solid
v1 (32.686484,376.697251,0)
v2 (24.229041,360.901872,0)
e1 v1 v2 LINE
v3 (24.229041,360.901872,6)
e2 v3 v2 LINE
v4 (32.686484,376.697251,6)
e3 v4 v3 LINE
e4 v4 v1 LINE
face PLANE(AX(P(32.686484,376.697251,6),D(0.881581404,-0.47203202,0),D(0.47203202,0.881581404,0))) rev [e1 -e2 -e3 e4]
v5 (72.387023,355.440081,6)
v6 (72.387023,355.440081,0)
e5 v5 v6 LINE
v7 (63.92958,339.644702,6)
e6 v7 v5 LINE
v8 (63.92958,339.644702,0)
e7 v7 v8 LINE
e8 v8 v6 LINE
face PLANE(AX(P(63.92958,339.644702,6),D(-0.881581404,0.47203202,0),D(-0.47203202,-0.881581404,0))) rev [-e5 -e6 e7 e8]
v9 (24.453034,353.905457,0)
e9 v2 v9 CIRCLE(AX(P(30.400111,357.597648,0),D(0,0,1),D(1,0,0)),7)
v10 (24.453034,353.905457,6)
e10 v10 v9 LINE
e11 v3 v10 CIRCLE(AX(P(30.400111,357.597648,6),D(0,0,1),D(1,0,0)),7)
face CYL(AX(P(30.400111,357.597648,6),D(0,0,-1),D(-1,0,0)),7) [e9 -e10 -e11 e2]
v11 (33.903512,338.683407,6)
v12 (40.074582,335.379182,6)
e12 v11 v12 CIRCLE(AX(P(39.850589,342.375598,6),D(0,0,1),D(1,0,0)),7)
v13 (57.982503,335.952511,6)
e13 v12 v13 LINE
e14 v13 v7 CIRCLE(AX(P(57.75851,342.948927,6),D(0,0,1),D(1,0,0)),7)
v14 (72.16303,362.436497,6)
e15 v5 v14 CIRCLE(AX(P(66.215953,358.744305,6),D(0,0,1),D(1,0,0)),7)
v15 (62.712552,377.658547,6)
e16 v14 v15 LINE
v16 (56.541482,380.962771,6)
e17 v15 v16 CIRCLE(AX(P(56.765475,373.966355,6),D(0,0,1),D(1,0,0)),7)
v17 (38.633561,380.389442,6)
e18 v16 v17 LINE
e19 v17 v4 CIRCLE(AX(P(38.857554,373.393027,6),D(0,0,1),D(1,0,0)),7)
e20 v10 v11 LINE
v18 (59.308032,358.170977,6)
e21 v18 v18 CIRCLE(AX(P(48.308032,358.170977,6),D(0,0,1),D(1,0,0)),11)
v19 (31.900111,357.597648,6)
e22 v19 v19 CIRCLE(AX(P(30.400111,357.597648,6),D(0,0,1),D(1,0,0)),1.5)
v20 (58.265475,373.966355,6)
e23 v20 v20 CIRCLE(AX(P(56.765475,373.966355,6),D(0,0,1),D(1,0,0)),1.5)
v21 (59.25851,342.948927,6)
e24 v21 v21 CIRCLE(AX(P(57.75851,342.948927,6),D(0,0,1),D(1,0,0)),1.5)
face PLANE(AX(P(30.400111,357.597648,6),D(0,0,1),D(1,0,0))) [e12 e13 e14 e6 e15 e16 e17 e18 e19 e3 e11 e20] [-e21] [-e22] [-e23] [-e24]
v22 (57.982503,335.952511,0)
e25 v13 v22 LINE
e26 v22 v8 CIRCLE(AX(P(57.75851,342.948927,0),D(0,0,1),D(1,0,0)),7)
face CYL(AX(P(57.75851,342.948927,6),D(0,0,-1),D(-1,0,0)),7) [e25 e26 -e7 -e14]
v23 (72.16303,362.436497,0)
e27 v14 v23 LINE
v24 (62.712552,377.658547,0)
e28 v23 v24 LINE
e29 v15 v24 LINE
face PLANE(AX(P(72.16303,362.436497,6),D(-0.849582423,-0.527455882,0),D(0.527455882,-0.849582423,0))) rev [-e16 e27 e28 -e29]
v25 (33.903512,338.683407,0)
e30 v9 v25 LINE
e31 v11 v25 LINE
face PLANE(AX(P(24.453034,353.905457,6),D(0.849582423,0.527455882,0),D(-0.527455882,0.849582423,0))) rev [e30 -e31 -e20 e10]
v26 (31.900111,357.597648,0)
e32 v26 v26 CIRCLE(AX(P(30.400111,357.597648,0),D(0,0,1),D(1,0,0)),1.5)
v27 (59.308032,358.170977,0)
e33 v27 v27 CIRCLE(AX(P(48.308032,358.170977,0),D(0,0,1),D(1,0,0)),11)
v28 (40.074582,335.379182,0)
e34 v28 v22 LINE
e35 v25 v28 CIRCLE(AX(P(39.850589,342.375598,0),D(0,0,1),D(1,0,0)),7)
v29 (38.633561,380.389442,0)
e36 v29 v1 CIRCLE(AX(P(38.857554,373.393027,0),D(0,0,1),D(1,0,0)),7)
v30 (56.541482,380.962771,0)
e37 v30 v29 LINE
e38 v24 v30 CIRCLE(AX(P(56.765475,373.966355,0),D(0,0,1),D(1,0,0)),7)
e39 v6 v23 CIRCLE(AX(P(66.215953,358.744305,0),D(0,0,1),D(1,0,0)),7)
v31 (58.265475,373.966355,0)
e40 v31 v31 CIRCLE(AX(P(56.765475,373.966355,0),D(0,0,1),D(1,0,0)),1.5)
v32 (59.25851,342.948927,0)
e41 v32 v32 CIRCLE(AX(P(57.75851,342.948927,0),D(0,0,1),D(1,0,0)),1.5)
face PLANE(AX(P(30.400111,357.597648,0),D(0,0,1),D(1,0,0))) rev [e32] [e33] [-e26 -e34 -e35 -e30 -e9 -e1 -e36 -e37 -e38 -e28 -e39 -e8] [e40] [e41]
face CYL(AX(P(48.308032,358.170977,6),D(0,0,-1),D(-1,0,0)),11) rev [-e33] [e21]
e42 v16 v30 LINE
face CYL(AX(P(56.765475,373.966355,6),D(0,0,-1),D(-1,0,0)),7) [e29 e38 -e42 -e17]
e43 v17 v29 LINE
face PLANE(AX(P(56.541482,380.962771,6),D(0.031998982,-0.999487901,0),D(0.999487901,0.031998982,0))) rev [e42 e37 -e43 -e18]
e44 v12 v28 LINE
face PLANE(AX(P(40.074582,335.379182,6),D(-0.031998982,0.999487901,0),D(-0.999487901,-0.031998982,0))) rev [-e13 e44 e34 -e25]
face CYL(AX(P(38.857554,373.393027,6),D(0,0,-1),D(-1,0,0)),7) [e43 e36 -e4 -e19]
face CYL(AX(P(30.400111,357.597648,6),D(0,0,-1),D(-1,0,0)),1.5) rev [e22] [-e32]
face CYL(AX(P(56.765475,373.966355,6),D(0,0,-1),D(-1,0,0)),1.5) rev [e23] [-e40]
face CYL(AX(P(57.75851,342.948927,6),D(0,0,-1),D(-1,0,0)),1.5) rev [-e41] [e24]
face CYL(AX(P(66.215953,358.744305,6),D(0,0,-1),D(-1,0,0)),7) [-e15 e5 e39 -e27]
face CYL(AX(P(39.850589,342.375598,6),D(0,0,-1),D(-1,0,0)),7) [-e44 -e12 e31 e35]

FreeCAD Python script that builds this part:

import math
import FreeCAD as App
import Part
import Sketcher

doc = App.newDocument("Part")
body = doc.addObject("PartDesign::Body", "Body")

# Sketch on XY plane
sketch1 = doc.addObject("Sketcher::SketchObject", "Sketch")
body.addObject(sketch1)
sketch1.AttachmentSupport = (doc.XY_Plane, [""])
sketch1.MapMode = "FlatFace"
sketch1.addGeometry([
    Part.LineSegment(App.Vector(24.5, 353.9, 0), App.Vector(33.9, 338.7, 0)),  # 0
    Part.ArcOfCircle(Part.Circle(App.Vector(39.9, 342.4, 0), App.Vector(0, 0, 1), 7), math.radians(-148), math.radians(-88)),  # 1
    Part.LineSegment(App.Vector(40.1, 335.4, 0), App.Vector(58, 336, 0)),  # 2
    Part.ArcOfCircle(Part.Circle(App.Vector(57.8, 342.9, 0), App.Vector(0, 0, 1), 7), math.radians(-88), math.radians(-28)),  # 3
    Part.LineSegment(App.Vector(63.9, 339.6, 0), App.Vector(72.4, 355.4, 0)),  # 4
    Part.ArcOfCircle(Part.Circle(App.Vector(66.2, 358.7, 0), App.Vector(0, 0, 1), 7), math.radians(-28), math.radians(32)),  # 5
    Part.LineSegment(App.Vector(72.2, 362.4, 0), App.Vector(62.7, 377.7, 0)),  # 6
    Part.ArcOfCircle(Part.Circle(App.Vector(56.8, 374, 0), App.Vector(0, 0, 1), 7), math.radians(32), math.radians(92)),  # 7
    Part.LineSegment(App.Vector(56.5, 381, 0), App.Vector(38.6, 380.4, 0)),  # 8
    Part.ArcOfCircle(Part.Circle(App.Vector(38.9, 373.4, 0), App.Vector(0, 0, 1), 7), math.radians(92), math.radians(152)),  # 9
    Part.LineSegment(App.Vector(32.7, 376.7, 0), App.Vector(24.2, 360.9, 0)),  # 10
    Part.ArcOfCircle(Part.Circle(App.Vector(30.4, 357.6, 0), App.Vector(0, 0, 1), 7), math.radians(152), math.radians(212)),  # 11
    Part.Circle(App.Vector(30.4, 357.6, 0), App.Vector(0, 0, 1), 1.5),  # 12
    Part.Circle(App.Vector(57.8, 342.9, 0), App.Vector(0, 0, 1), 1.5),  # 13
    Part.Circle(App.Vector(48.3, 358.2, 0), App.Vector(0, 0, 1), 11),  # 14
    Part.Circle(App.Vector(56.8, 374, 0), App.Vector(0, 0, 1), 1.5),  # 15
], False)
sketch1.addConstraint([
    Sketcher.Constraint("Tangent", 0, 2, 1, 1),
    Sketcher.Constraint("Tangent", 1, 2, 2, 1),
    Sketcher.Constraint("Tangent", 2, 2, 3, 1),
    Sketcher.Constraint("Tangent", 3, 2, 4, 1),
    Sketcher.Constraint("Tangent", 4, 2, 5, 1),
    Sketcher.Constraint("Tangent", 5, 2, 6, 1),
    Sketcher.Constraint("Tangent", 6, 2, 7, 1),
    Sketcher.Constraint("Tangent", 7, 2, 8, 1),
    Sketcher.Constraint("Tangent", 8, 2, 9, 1),
    Sketcher.Constraint("Tangent", 9, 2, 10, 1),
    Sketcher.Constraint("Tangent", 10, 2, 11, 1),
    Sketcher.Constraint("Tangent", 11, 2, 0, 1),
    Sketcher.Constraint("Coincident", 12, 3, 11, 3),
    Sketcher.Constraint("Coincident", 13, 3, 3, 3),
    Sketcher.Constraint("Coincident", 15, 3, 7, 3),
    Sketcher.Constraint("Equal", 1, 3),
    Sketcher.Constraint("Equal", 3, 5),
    Sketcher.Constraint("Equal", 5, 7),
    Sketcher.Constraint("Equal", 7, 9),
    Sketcher.Constraint("Equal", 9, 11),
    Sketcher.Constraint("Equal", 12, 13),
    Sketcher.Constraint("Equal", 13, 15),
    Sketcher.Constraint("Parallel", 0, 6),
    Sketcher.Constraint("Parallel", 2, 8),
    Sketcher.Constraint("Parallel", 4, 10),
    Sketcher.Constraint("Equal", 0, 2),
    Sketcher.Constraint("Equal", 2, 4),
    Sketcher.Constraint("Equal", 4, 6),
    Sketcher.Constraint("Diameter", 12, 3.0),
    Sketcher.Constraint("Diameter", 14, 22.0),
    Sketcher.Constraint("Radius", 1, 7.0),
    Sketcher.Constraint("DistanceX", 9, 3, 5, 3, 27.358399),
    Sketcher.Constraint("DistanceY", 3, 3, 9, 3, 30.4441),
    Sketcher.Constraint("DistanceX", 11, 3, 0, 2, 3.503401),
    Sketcher.Constraint("DistanceX", -1, 1, 1, 3, 39.850589),
    Sketcher.Constraint("DistanceX", -1, 1, 14, 3, 48.308032),
    Sketcher.Constraint("DistanceX", -1, 1, 1, 2, 40.074582),
    Sketcher.Constraint("DistanceY", -1, 1, 2, 2, 335.952511),
    Sketcher.Constraint("DistanceY", 1, 3, 14, 3, 15.795379),
])
pad1 = doc.addObject("PartDesign::Pad", "Pad")
body.addObject(pad1)
pad1.Profile = sketch1
pad1.Length = 6

doc.recompute()
